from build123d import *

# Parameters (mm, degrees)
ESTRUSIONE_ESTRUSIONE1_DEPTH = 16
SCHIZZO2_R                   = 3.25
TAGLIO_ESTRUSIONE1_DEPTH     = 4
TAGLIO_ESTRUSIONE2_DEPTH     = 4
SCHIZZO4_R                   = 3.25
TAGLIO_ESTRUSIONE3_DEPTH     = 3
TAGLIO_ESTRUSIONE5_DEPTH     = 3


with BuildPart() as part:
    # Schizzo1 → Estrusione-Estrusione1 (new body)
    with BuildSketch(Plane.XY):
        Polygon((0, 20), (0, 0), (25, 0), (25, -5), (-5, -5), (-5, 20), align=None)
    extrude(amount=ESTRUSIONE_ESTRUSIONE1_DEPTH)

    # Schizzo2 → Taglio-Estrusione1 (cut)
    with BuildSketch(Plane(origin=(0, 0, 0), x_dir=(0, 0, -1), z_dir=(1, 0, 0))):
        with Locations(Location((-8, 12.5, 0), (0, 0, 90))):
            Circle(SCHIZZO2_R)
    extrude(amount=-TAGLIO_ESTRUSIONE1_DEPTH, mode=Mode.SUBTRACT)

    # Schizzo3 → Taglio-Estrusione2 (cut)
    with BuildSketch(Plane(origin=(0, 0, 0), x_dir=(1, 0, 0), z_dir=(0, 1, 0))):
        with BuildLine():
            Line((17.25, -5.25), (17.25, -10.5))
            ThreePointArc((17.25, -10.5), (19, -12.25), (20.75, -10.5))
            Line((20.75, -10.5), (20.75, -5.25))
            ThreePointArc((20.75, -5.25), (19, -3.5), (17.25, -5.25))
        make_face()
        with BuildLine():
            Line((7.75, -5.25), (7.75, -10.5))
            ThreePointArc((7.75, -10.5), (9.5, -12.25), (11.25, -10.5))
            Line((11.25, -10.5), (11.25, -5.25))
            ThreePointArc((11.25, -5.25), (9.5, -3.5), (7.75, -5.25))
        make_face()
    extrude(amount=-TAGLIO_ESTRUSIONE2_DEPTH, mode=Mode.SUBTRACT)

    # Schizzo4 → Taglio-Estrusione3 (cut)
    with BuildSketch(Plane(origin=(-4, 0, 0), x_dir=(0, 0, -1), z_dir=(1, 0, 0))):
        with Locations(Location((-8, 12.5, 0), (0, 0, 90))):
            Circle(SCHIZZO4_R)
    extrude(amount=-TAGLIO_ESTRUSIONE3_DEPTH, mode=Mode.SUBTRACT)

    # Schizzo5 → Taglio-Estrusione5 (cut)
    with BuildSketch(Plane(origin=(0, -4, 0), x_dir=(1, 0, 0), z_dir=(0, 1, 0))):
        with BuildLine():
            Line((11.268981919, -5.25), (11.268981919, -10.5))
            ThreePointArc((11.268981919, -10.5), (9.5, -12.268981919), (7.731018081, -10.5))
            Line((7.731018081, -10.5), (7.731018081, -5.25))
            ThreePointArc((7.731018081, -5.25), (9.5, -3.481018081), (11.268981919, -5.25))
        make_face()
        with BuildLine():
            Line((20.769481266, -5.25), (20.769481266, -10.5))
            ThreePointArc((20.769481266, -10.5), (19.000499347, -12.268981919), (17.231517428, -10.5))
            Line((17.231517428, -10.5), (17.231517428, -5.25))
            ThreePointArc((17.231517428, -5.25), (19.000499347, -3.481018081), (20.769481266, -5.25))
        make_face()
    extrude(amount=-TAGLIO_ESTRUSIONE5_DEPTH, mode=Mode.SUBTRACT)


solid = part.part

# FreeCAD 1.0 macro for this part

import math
import FreeCAD as App
import Part
import Sketcher

V = App.Vector
Q = App.Units.Quantity

doc = App.newDocument("Part")
body = doc.addObject("PartDesign::Body", "Body")

# Sketch on XY plane
sketch1 = body.newObject("Sketcher::SketchObject", "Sketch")
sketch1.AttachmentSupport = (doc.getObject("XY_Plane"), [""])
sketch1.MapMode = "FlatFace"
sketch1.addGeometry(Part.LineSegment(V(0, 0, 0), V(0, 20, 0)), False)
sketch1.addGeometry(Part.LineSegment(V(0, 20, 0), V(-5, 20, 0)), False)
sketch1.addGeometry(Part.LineSegment(V(-5, 20, 0), V(-5, -5, 0)), False)
sketch1.addGeometry(Part.LineSegment(V(-5, -5, 0), V(25, -5, 0)), False)
sketch1.addGeometry(Part.LineSegment(V(25, -5, 0), V(25, 0, 0)), False)
sketch1.addGeometry(Part.LineSegment(V(25, 0, 0), V(0, 0, 0)), False)
sketch1.addConstraint(Sketcher.Constraint("Coincident", 0, 2, 1, 1))
sketch1.addConstraint(Sketcher.Constraint("Coincident", 1, 2, 2, 1))
sketch1.addConstraint(Sketcher.Constraint("Coincident", 2, 2, 3, 1))
sketch1.addConstraint(Sketcher.Constraint("Coincident", 3, 2, 4, 1))
sketch1.addConstraint(Sketcher.Constraint("Coincident", 4, 2, 5, 1))
sketch1.addConstraint(Sketcher.Constraint("Coincident", 5, 2, 0, 1))
sketch1.addConstraint(Sketcher.Constraint("Vertical", 0))
sketch1.addConstraint(Sketcher.Constraint("Horizontal", 1))
sketch1.addConstraint(Sketcher.Constraint("Vertical", 2))
sketch1.addConstraint(Sketcher.Constraint("Horizontal", 3))
sketch1.addConstraint(Sketcher.Constraint("Vertical", 4))
sketch1.addConstraint(Sketcher.Constraint("Horizontal", 5))
sketch1.addConstraint(Sketcher.Constraint("Coincident", 5, 2, -1, 1))
sketch1.addConstraint(Sketcher.Constraint("Equal", 5, 2))
sketch1.addConstraint(Sketcher.Constraint("Equal", 1, 4))
sketch1.addConstraint(Sketcher.Constraint("DistanceX", 1, 2, 1, 1, Q("5 mm")))
sketch1.addConstraint(Sketcher.Constraint("DistanceX", 3, 1, 3, 2, Q("30 mm")))
pad1 = body.newObject("PartDesign::Pad", "Pad")
pad1.Profile = sketch1
pad1.Length = 16

# Sketch on YZ plane
sketch2 = body.newObject("Sketcher::SketchObject", "Sketch001")
sketch2.AttachmentSupport = (doc.getObject("YZ_Plane"), [""])
sketch2.MapMode = "FlatFace"
sketch2.addGeometry(Part.Circle(V(12.5, 8, 0), V(0, 0, 1), 3.2), False)
sketch2.addConstraint(Sketcher.Constraint("Diameter", 0, Q("6.5 mm")))
sketch2.addConstraint(Sketcher.Constraint("DistanceY", -1, 1, 0, 3, Q("8 mm")))
sketch2.addConstraint(Sketcher.Constraint("DistanceX", -1, 1, 0, 3, Q("12.5 mm")))
pocket1 = body.newObject("PartDesign::Pocket", "Pocket")
pocket1.Profile = sketch2
pocket1.Length = 4

# Sketch on XZ plane
sketch3 = body.newObject("Sketcher::SketchObject", "Sketch002")
sketch3.AttachmentSupport = (doc.getObject("XZ_Plane"), [""])
sketch3.MapMode = "FlatFace"
sketch3.addGeometry(Part.LineSegment(V(17.2, 5.2, 0), V(17.2, 10.5, 0)), False)
sketch3.addGeometry(Part.ArcOfCircle(Part.Circle(V(19, 10.5, 0), V(0, 0, 1), 1.8), math.radians(0), math.radians(180)), False)
sketch3.addGeometry(Part.LineSegment(V(20.8, 10.5, 0), V(20.8, 5.2, 0)), False)
sketch3.addGeometry(Part.ArcOfCircle(Part.Circle(V(19, 5.2, 0), V(0, 0, 1), 1.8), math.radians(180), math.radians(360)), False)
sketch3.addGeometry(Part.LineSegment(V(7.8, 5.2, 0), V(7.8, 10.5, 0)), False)
sketch3.addGeometry(Part.ArcOfCircle(Part.Circle(V(9.5, 10.5, 0), V(0, 0, 1), 1.8), math.radians(0), math.radians(180)), False)
sketch3.addGeometry(Part.LineSegment(V(11.2, 10.5, 0), V(11.2, 5.2, 0)), False)
sketch3.addGeometry(Part.ArcOfCircle(Part.Circle(V(9.5, 5.2, 0), V(0, 0, 1), 1.8), math.radians(180), math.radians(360)), False)
sketch3.addConstraint(Sketcher.Constraint("Tangent", 0, 2, 1, 2))
sketch3.addConstraint(Sketcher.Constraint("Tangent", 1, 1, 2, 1))
sketch3.addConstraint(Sketcher.Constraint("Tangent", 2, 2, 3, 2))
sketch3.addConstraint(Sketcher.Constraint("Tangent", 3, 1, 0, 1))
sketch3.addConstraint(Sketcher.Constraint("Tangent", 4, 2, 5, 2))
sketch3.addConstraint(Sketcher.Constraint("Tangent", 5, 1, 6, 1))
sketch3.addConstraint(Sketcher.Constraint("Tangent", 6, 2, 7, 2))
sketch3.addConstraint(Sketcher.Constraint("Tangent", 7, 1, 4, 1))
sketch3.addConstraint(Sketcher.Constraint("Vertical", 0))
sketch3.addConstraint(Sketcher.Constraint("Vertical", 2))
sketch3.addConstraint(Sketcher.Constraint("Vertical", 4))
sketch3.addConstraint(Sketcher.Constraint("Vertical", 6))
sketch3.addConstraint(Sketcher.Constraint("Equal", 3, 5))
sketch3.addConstraint(Sketcher.Constraint("Horizontal", 1, 3, 5, 3))
sketch3.addConstraint(Sketcher.Constraint("Horizontal", 3, 3, 7, 3))
sketch3.addConstraint(Sketcher.Constraint("Radius", 1, Q("1.75 mm")))
sketch3.addConstraint(Sketcher.Constraint("DistanceX", -1, 1, 1, 3, Q("19 mm")))
sketch3.addConstraint(Sketcher.Constraint("DistanceX", 5, 1, 0, 2, Q("6 mm")))
sketch3.addConstraint(Sketcher.Constraint("DistanceY", 0, 1, 0, 2, Q("5.25 mm")))
sketch3.addConstraint(Sketcher.Constraint("DistanceY", -1, 1, 1, 3, Q("10.5 mm")))
pocket2 = body.newObject("PartDesign::Pocket", "Pocket001")
pocket2.Profile = sketch3
pocket2.Length = 4
pocket2.Reversed = True

# Sketch on YZ plane
sketch4 = body.newObject("Sketcher::SketchObject", "Sketch003")
sketch4.AttachmentSupport = (doc.getObject("YZ_Plane"), [""])
sketch4.MapMode = "FlatFace"
sketch4.AttachmentOffset = App.Placement(V(0, 0, -4), App.Rotation())
sketch4.addGeometry(Part.Circle(V(12.5, 8, 0), V(0, 0, 1), 3.2), False)
sketch4.addConstraint(Sketcher.Constraint("Diameter", 0, Q("6.5 mm")))
sketch4.addConstraint(Sketcher.Constraint("DistanceY", -1, 1, 0, 3, Q("8 mm")))
sketch4.addConstraint(Sketcher.Constraint("DistanceX", -1, 1, 0, 3, Q("12.5 mm")))
pocket3 = body.newObject("PartDesign::Pocket", "Pocket002")
pocket3.Profile = sketch4
pocket3.Length = 3

# Sketch on XZ plane
sketch5 = body.newObject("Sketcher::SketchObject", "Sketch004")
sketch5.AttachmentSupport = (doc.getObject("XZ_Plane"), [""])
sketch5.MapMode = "FlatFace"
sketch5.AttachmentOffset = App.Placement(V(0, 0, 4), App.Rotation())
sketch5.addGeometry(Part.LineSegment(V(11.3, 10.5, 0), V(11.3, 5.2, 0)), False)
sketch5.addGeometry(Part.ArcOfCircle(Part.Circle(V(9.5, 5.2, 0), V(0, 0, 1), 1.8), math.radians(180), math.radians(360)), False)
sketch5.addGeometry(Part.LineSegment(V(7.7, 5.2, 0), V(7.7, 10.5, 0)), False)
sketch5.addGeometry(Part.ArcOfCircle(Part.Circle(V(9.5, 10.5, 0), V(0, 0, 1), 1.8), math.radians(0), math.radians(180)), False)
sketch5.addGeometry(Part.LineSegment(V(20.8, 10.5, 0), V(20.8, 5.2, 0)), False)
sketch5.addGeometry(Part.ArcOfCircle(Part.Circle(V(19, 5.2, 0), V(0, 0, 1), 1.8), math.radians(180), math.radians(360)), False)
sketch5.addGeometry(Part.LineSegment(V(17.2, 5.2, 0), V(17.2, 10.5, 0)), False)
sketch5.addGeometry(Part.ArcOfCircle(Part.Circle(V(19, 10.5, 0), V(0, 0, 1), 1.8), math.radians(0), math.radians(180)), False)
sketch5.addConstraint(Sketcher.Constraint("Tangent", 0, 2, 1, 2))
sketch5.addConstraint(Sketcher.Constraint("Tangent", 1, 1, 2, 1))
sketch5.addConstraint(Sketcher.Constraint("Tangent", 2, 2, 3, 2))
sketch5.addConstraint(Sketcher.Constraint("Tangent", 3, 1, 0, 1))
sketch5.addConstraint(Sketcher.Constraint("Tangent", 4, 2, 5, 2))
sketch5.addConstraint(Sketcher.Constraint("Tangent", 5, 1, 6, 1))
sketch5.addConstraint(Sketcher.Constraint("Tangent", 6, 2, 7, 2))
sketch5.addConstraint(Sketcher.Constraint("Tangent", 7, 1, 4, 1))
sketch5.addConstraint(Sketcher.Constraint("Vertical", 0))
sketch5.addConstraint(Sketcher.Constraint("Vertical", 2))
sketch5.addConstraint(Sketcher.Constraint("Vertical", 4))
sketch5.addConstraint(Sketcher.Constraint("Vertical", 6))
sketch5.addConstraint(Sketcher.Constraint("Equal", 3, 5))
sketch5.addConstraint(Sketcher.Constraint("Horizontal", 1, 3, 5, 3))
sketch5.addConstraint(Sketcher.Constraint("Horizontal", 3, 3, 7, 3))
sketch5.addConstraint(Sketcher.Constraint("DistanceY", 0, 2, 0, 1, Q("5.25 mm")))
sketch5.addConstraint(Sketcher.Constraint("DistanceX", -1, 1, 1, 3, Q("9.5 mm")))
sketch5.addConstraint(Sketcher.Constraint("DistanceY", -1, 1, 3, 3, Q("10.5 mm")))
sketch5.addConstraint(Sketcher.Constraint("Radius", 1, Q("1.768982 mm")))
sketch5.addConstraint(Sketcher.Constraint("DistanceX", -1, 1, 5, 3, Q("19.000499 mm")))
pocket4 = body.newObject("PartDesign::Pocket", "Pocket003")
pocket4.Profile = sketch5
pocket4.Length = 3
pocket4.Reversed = True

doc.recompute()
